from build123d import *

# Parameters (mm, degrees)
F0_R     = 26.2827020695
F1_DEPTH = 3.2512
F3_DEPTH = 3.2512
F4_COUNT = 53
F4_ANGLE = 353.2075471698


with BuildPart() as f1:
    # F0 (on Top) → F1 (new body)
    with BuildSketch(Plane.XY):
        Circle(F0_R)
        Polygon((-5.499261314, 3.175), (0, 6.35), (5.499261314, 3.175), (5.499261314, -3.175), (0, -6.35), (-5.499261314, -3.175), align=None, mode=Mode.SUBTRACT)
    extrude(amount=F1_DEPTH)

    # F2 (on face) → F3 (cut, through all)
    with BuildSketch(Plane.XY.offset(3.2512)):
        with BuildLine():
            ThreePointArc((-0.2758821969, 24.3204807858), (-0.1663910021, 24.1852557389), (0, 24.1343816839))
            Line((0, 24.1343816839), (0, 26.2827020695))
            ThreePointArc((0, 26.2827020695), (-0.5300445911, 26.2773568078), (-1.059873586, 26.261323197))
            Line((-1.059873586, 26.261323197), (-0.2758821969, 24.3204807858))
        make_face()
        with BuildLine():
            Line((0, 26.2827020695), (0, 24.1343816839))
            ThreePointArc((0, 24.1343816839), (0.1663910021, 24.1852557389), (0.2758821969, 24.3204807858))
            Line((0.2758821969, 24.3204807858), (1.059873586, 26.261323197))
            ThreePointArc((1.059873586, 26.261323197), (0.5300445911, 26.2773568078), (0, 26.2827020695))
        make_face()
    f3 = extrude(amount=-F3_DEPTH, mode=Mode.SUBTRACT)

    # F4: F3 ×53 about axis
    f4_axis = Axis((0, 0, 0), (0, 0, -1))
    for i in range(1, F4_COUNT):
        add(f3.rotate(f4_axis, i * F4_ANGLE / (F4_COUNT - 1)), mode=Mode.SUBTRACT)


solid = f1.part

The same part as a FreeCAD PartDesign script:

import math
import FreeCAD as App
import Part
import Sketcher

V = App.Vector
Q = App.Units.Quantity


def add_polygon(sketch, points):
    """Adds a closed chain of lines whose ends are joined by coincident constraints."""
    first, n = sketch.GeometryCount, len(points)
    for a, b in zip(points, points[1:] + points[:1]):
        sketch.addGeometry(Part.LineSegment(App.Vector(*a, 0), App.Vector(*b, 0)), False)
    for i in range(n):
        sketch.addConstraint(Sketcher.Constraint("Coincident", first + i, 2, first + (i + 1) % n, 1))

doc = App.newDocument("Part")
body = doc.addObject("PartDesign::Body", "Body")

# Sketch on XY plane
sketch1 = body.newObject("Sketcher::SketchObject", "Sketch")
sketch1.AttachmentSupport = (doc.getObject("XY_Plane"), [""])
sketch1.MapMode = "FlatFace"
sketch1.addGeometry(Part.Circle(V(0, 0, 0), V(0, 0, 1), 26.282702), False)  # 0
add_polygon(sketch1, [(-5.499261, -3.175), (-5.499261, 3.175), (0, 6.35), (5.499261, 3.175), (5.499261, -3.175), (0, -6.35)])  # lines 1-6
sketch1.addConstraint([
    Sketcher.Constraint("Vertical", 1),
    Sketcher.Constraint("Vertical", 4),
    Sketcher.Constraint("Coincident", 0, 3, -1, 1),
    Sketcher.Constraint("Symmetric", 1, 2, 4, 2, -1, 1),
    Sketcher.Constraint("Symmetric", 2, 2, 5, 2, -1, 1),
    Sketcher.Constraint("PointOnObject", 2, 2, -2),
    Sketcher.Constraint("Parallel", 3, 6),
    Sketcher.Constraint("Horizontal", 1, 2, 3, 2),
    Sketcher.Constraint("Angle", 2, Q("30 deg")),
    Sketcher.Constraint("DistanceY", 1, 1, 1, 2, Q("0.25 in")),
    Sketcher.Constraint("DistanceY", 5, 2, 2, 2, Q("0.5 in")),
    Sketcher.Constraint("Diameter", 0, Q("52.565404 mm")),
])
pad1 = body.newObject("PartDesign::Pad", "Pad")
pad1.Profile = sketch1
pad1.Length = Q("0.128 in")

# Sketch on XY plane
sketch2 = body.newObject("Sketcher::SketchObject", "Sketch001")
sketch2.AttachmentSupport = (doc.getObject("XY_Plane"), [""])
sketch2.MapMode = "FlatFace"
sketch2.AttachmentOffset = App.Placement(V(0, 0, 0.128 * 25.4), App.Rotation())
sketch2.addGeometry([
    Part.ArcOfCircle(Part.Circle(V(0, 24.431922, 0), V(0, 0, 1), 0.29754), math.radians(-158.004057), math.radians(-90)),  # 0
    Part.ArcOfCircle(Part.Circle(V(0, 24.431922, 0), V(0, 0, 1), 0.29754), math.radians(-90), math.radians(-21.995943)),  # 1
    Part.LineSegment(V(0.275882, 24.320481, 0), V(1.059874, 26.261323, 0)),  # 2
    Part.ArcOfCircle(Part.Circle(V(0, 0, 0), V(0, 0, 1), 26.282702), math.radians(87.68887), math.radians(90)),  # 3
    Part.ArcOfCircle(Part.Circle(V(0, 0, 0), V(0, 0, 1), 26.282702), math.radians(90), math.radians(92.31113)),  # 4
    Part.LineSegment(V(-1.059874, 26.261323, 0), V(-0.275882, 24.320481, 0)),  # 5
], False)
sketch2.addConstraint([
    Sketcher.Constraint("Tangent", 0, 2, 1, 1),
    Sketcher.Constraint("Tangent", 1, 2, 2, 1),
    Sketcher.Constraint("Coincident", 2, 2, 3, 1),
    Sketcher.Constraint("Tangent", 3, 2, 4, 1),
    Sketcher.Constraint("Coincident", 4, 2, 5, 1),
    Sketcher.Constraint("Tangent", 5, 2, 0, 1),
    Sketcher.Constraint("Coincident", 3, 3, -1, 1),
    Sketcher.Constraint("Equal", 0, 1),
    Sketcher.Constraint("Equal", 3, 4),
    Sketcher.Constraint("Symmetric", 1, 2, 5, 2, -2),
    Sketcher.Constraint("PointOnObject", 0, 2, -2),
    Sketcher.Constraint("PointOnObject", 3, 2, -2),
    Sketcher.Constraint("Radius", 0, Q("0.29754 mm")),
    Sketcher.Constraint("Radius", 3, Q("26.282702 mm")),
    Sketcher.Constraint("DistanceY", 0, 2, 1, 2, Q("0.186099 mm")),
    Sketcher.Constraint("DistanceY", 0, 3, 2, 2, Q("1.829401 mm")),
])
pocket1 = body.newObject("PartDesign::Pocket", "Pocket")
pocket1.Profile = sketch2
pocket1.Type = "ThroughAll"
doc.recompute()

polarpattern = body.newObject("PartDesign::PolarPattern", "PolarPattern")
polarpattern.Originals = [pocket1]
polarpattern.Axis = (doc.getObject("Z_Axis"), [""])
polarpattern.Angle = 360
polarpattern.Occurrences = 53
body.Tip = polarpattern

doc.recompute()
